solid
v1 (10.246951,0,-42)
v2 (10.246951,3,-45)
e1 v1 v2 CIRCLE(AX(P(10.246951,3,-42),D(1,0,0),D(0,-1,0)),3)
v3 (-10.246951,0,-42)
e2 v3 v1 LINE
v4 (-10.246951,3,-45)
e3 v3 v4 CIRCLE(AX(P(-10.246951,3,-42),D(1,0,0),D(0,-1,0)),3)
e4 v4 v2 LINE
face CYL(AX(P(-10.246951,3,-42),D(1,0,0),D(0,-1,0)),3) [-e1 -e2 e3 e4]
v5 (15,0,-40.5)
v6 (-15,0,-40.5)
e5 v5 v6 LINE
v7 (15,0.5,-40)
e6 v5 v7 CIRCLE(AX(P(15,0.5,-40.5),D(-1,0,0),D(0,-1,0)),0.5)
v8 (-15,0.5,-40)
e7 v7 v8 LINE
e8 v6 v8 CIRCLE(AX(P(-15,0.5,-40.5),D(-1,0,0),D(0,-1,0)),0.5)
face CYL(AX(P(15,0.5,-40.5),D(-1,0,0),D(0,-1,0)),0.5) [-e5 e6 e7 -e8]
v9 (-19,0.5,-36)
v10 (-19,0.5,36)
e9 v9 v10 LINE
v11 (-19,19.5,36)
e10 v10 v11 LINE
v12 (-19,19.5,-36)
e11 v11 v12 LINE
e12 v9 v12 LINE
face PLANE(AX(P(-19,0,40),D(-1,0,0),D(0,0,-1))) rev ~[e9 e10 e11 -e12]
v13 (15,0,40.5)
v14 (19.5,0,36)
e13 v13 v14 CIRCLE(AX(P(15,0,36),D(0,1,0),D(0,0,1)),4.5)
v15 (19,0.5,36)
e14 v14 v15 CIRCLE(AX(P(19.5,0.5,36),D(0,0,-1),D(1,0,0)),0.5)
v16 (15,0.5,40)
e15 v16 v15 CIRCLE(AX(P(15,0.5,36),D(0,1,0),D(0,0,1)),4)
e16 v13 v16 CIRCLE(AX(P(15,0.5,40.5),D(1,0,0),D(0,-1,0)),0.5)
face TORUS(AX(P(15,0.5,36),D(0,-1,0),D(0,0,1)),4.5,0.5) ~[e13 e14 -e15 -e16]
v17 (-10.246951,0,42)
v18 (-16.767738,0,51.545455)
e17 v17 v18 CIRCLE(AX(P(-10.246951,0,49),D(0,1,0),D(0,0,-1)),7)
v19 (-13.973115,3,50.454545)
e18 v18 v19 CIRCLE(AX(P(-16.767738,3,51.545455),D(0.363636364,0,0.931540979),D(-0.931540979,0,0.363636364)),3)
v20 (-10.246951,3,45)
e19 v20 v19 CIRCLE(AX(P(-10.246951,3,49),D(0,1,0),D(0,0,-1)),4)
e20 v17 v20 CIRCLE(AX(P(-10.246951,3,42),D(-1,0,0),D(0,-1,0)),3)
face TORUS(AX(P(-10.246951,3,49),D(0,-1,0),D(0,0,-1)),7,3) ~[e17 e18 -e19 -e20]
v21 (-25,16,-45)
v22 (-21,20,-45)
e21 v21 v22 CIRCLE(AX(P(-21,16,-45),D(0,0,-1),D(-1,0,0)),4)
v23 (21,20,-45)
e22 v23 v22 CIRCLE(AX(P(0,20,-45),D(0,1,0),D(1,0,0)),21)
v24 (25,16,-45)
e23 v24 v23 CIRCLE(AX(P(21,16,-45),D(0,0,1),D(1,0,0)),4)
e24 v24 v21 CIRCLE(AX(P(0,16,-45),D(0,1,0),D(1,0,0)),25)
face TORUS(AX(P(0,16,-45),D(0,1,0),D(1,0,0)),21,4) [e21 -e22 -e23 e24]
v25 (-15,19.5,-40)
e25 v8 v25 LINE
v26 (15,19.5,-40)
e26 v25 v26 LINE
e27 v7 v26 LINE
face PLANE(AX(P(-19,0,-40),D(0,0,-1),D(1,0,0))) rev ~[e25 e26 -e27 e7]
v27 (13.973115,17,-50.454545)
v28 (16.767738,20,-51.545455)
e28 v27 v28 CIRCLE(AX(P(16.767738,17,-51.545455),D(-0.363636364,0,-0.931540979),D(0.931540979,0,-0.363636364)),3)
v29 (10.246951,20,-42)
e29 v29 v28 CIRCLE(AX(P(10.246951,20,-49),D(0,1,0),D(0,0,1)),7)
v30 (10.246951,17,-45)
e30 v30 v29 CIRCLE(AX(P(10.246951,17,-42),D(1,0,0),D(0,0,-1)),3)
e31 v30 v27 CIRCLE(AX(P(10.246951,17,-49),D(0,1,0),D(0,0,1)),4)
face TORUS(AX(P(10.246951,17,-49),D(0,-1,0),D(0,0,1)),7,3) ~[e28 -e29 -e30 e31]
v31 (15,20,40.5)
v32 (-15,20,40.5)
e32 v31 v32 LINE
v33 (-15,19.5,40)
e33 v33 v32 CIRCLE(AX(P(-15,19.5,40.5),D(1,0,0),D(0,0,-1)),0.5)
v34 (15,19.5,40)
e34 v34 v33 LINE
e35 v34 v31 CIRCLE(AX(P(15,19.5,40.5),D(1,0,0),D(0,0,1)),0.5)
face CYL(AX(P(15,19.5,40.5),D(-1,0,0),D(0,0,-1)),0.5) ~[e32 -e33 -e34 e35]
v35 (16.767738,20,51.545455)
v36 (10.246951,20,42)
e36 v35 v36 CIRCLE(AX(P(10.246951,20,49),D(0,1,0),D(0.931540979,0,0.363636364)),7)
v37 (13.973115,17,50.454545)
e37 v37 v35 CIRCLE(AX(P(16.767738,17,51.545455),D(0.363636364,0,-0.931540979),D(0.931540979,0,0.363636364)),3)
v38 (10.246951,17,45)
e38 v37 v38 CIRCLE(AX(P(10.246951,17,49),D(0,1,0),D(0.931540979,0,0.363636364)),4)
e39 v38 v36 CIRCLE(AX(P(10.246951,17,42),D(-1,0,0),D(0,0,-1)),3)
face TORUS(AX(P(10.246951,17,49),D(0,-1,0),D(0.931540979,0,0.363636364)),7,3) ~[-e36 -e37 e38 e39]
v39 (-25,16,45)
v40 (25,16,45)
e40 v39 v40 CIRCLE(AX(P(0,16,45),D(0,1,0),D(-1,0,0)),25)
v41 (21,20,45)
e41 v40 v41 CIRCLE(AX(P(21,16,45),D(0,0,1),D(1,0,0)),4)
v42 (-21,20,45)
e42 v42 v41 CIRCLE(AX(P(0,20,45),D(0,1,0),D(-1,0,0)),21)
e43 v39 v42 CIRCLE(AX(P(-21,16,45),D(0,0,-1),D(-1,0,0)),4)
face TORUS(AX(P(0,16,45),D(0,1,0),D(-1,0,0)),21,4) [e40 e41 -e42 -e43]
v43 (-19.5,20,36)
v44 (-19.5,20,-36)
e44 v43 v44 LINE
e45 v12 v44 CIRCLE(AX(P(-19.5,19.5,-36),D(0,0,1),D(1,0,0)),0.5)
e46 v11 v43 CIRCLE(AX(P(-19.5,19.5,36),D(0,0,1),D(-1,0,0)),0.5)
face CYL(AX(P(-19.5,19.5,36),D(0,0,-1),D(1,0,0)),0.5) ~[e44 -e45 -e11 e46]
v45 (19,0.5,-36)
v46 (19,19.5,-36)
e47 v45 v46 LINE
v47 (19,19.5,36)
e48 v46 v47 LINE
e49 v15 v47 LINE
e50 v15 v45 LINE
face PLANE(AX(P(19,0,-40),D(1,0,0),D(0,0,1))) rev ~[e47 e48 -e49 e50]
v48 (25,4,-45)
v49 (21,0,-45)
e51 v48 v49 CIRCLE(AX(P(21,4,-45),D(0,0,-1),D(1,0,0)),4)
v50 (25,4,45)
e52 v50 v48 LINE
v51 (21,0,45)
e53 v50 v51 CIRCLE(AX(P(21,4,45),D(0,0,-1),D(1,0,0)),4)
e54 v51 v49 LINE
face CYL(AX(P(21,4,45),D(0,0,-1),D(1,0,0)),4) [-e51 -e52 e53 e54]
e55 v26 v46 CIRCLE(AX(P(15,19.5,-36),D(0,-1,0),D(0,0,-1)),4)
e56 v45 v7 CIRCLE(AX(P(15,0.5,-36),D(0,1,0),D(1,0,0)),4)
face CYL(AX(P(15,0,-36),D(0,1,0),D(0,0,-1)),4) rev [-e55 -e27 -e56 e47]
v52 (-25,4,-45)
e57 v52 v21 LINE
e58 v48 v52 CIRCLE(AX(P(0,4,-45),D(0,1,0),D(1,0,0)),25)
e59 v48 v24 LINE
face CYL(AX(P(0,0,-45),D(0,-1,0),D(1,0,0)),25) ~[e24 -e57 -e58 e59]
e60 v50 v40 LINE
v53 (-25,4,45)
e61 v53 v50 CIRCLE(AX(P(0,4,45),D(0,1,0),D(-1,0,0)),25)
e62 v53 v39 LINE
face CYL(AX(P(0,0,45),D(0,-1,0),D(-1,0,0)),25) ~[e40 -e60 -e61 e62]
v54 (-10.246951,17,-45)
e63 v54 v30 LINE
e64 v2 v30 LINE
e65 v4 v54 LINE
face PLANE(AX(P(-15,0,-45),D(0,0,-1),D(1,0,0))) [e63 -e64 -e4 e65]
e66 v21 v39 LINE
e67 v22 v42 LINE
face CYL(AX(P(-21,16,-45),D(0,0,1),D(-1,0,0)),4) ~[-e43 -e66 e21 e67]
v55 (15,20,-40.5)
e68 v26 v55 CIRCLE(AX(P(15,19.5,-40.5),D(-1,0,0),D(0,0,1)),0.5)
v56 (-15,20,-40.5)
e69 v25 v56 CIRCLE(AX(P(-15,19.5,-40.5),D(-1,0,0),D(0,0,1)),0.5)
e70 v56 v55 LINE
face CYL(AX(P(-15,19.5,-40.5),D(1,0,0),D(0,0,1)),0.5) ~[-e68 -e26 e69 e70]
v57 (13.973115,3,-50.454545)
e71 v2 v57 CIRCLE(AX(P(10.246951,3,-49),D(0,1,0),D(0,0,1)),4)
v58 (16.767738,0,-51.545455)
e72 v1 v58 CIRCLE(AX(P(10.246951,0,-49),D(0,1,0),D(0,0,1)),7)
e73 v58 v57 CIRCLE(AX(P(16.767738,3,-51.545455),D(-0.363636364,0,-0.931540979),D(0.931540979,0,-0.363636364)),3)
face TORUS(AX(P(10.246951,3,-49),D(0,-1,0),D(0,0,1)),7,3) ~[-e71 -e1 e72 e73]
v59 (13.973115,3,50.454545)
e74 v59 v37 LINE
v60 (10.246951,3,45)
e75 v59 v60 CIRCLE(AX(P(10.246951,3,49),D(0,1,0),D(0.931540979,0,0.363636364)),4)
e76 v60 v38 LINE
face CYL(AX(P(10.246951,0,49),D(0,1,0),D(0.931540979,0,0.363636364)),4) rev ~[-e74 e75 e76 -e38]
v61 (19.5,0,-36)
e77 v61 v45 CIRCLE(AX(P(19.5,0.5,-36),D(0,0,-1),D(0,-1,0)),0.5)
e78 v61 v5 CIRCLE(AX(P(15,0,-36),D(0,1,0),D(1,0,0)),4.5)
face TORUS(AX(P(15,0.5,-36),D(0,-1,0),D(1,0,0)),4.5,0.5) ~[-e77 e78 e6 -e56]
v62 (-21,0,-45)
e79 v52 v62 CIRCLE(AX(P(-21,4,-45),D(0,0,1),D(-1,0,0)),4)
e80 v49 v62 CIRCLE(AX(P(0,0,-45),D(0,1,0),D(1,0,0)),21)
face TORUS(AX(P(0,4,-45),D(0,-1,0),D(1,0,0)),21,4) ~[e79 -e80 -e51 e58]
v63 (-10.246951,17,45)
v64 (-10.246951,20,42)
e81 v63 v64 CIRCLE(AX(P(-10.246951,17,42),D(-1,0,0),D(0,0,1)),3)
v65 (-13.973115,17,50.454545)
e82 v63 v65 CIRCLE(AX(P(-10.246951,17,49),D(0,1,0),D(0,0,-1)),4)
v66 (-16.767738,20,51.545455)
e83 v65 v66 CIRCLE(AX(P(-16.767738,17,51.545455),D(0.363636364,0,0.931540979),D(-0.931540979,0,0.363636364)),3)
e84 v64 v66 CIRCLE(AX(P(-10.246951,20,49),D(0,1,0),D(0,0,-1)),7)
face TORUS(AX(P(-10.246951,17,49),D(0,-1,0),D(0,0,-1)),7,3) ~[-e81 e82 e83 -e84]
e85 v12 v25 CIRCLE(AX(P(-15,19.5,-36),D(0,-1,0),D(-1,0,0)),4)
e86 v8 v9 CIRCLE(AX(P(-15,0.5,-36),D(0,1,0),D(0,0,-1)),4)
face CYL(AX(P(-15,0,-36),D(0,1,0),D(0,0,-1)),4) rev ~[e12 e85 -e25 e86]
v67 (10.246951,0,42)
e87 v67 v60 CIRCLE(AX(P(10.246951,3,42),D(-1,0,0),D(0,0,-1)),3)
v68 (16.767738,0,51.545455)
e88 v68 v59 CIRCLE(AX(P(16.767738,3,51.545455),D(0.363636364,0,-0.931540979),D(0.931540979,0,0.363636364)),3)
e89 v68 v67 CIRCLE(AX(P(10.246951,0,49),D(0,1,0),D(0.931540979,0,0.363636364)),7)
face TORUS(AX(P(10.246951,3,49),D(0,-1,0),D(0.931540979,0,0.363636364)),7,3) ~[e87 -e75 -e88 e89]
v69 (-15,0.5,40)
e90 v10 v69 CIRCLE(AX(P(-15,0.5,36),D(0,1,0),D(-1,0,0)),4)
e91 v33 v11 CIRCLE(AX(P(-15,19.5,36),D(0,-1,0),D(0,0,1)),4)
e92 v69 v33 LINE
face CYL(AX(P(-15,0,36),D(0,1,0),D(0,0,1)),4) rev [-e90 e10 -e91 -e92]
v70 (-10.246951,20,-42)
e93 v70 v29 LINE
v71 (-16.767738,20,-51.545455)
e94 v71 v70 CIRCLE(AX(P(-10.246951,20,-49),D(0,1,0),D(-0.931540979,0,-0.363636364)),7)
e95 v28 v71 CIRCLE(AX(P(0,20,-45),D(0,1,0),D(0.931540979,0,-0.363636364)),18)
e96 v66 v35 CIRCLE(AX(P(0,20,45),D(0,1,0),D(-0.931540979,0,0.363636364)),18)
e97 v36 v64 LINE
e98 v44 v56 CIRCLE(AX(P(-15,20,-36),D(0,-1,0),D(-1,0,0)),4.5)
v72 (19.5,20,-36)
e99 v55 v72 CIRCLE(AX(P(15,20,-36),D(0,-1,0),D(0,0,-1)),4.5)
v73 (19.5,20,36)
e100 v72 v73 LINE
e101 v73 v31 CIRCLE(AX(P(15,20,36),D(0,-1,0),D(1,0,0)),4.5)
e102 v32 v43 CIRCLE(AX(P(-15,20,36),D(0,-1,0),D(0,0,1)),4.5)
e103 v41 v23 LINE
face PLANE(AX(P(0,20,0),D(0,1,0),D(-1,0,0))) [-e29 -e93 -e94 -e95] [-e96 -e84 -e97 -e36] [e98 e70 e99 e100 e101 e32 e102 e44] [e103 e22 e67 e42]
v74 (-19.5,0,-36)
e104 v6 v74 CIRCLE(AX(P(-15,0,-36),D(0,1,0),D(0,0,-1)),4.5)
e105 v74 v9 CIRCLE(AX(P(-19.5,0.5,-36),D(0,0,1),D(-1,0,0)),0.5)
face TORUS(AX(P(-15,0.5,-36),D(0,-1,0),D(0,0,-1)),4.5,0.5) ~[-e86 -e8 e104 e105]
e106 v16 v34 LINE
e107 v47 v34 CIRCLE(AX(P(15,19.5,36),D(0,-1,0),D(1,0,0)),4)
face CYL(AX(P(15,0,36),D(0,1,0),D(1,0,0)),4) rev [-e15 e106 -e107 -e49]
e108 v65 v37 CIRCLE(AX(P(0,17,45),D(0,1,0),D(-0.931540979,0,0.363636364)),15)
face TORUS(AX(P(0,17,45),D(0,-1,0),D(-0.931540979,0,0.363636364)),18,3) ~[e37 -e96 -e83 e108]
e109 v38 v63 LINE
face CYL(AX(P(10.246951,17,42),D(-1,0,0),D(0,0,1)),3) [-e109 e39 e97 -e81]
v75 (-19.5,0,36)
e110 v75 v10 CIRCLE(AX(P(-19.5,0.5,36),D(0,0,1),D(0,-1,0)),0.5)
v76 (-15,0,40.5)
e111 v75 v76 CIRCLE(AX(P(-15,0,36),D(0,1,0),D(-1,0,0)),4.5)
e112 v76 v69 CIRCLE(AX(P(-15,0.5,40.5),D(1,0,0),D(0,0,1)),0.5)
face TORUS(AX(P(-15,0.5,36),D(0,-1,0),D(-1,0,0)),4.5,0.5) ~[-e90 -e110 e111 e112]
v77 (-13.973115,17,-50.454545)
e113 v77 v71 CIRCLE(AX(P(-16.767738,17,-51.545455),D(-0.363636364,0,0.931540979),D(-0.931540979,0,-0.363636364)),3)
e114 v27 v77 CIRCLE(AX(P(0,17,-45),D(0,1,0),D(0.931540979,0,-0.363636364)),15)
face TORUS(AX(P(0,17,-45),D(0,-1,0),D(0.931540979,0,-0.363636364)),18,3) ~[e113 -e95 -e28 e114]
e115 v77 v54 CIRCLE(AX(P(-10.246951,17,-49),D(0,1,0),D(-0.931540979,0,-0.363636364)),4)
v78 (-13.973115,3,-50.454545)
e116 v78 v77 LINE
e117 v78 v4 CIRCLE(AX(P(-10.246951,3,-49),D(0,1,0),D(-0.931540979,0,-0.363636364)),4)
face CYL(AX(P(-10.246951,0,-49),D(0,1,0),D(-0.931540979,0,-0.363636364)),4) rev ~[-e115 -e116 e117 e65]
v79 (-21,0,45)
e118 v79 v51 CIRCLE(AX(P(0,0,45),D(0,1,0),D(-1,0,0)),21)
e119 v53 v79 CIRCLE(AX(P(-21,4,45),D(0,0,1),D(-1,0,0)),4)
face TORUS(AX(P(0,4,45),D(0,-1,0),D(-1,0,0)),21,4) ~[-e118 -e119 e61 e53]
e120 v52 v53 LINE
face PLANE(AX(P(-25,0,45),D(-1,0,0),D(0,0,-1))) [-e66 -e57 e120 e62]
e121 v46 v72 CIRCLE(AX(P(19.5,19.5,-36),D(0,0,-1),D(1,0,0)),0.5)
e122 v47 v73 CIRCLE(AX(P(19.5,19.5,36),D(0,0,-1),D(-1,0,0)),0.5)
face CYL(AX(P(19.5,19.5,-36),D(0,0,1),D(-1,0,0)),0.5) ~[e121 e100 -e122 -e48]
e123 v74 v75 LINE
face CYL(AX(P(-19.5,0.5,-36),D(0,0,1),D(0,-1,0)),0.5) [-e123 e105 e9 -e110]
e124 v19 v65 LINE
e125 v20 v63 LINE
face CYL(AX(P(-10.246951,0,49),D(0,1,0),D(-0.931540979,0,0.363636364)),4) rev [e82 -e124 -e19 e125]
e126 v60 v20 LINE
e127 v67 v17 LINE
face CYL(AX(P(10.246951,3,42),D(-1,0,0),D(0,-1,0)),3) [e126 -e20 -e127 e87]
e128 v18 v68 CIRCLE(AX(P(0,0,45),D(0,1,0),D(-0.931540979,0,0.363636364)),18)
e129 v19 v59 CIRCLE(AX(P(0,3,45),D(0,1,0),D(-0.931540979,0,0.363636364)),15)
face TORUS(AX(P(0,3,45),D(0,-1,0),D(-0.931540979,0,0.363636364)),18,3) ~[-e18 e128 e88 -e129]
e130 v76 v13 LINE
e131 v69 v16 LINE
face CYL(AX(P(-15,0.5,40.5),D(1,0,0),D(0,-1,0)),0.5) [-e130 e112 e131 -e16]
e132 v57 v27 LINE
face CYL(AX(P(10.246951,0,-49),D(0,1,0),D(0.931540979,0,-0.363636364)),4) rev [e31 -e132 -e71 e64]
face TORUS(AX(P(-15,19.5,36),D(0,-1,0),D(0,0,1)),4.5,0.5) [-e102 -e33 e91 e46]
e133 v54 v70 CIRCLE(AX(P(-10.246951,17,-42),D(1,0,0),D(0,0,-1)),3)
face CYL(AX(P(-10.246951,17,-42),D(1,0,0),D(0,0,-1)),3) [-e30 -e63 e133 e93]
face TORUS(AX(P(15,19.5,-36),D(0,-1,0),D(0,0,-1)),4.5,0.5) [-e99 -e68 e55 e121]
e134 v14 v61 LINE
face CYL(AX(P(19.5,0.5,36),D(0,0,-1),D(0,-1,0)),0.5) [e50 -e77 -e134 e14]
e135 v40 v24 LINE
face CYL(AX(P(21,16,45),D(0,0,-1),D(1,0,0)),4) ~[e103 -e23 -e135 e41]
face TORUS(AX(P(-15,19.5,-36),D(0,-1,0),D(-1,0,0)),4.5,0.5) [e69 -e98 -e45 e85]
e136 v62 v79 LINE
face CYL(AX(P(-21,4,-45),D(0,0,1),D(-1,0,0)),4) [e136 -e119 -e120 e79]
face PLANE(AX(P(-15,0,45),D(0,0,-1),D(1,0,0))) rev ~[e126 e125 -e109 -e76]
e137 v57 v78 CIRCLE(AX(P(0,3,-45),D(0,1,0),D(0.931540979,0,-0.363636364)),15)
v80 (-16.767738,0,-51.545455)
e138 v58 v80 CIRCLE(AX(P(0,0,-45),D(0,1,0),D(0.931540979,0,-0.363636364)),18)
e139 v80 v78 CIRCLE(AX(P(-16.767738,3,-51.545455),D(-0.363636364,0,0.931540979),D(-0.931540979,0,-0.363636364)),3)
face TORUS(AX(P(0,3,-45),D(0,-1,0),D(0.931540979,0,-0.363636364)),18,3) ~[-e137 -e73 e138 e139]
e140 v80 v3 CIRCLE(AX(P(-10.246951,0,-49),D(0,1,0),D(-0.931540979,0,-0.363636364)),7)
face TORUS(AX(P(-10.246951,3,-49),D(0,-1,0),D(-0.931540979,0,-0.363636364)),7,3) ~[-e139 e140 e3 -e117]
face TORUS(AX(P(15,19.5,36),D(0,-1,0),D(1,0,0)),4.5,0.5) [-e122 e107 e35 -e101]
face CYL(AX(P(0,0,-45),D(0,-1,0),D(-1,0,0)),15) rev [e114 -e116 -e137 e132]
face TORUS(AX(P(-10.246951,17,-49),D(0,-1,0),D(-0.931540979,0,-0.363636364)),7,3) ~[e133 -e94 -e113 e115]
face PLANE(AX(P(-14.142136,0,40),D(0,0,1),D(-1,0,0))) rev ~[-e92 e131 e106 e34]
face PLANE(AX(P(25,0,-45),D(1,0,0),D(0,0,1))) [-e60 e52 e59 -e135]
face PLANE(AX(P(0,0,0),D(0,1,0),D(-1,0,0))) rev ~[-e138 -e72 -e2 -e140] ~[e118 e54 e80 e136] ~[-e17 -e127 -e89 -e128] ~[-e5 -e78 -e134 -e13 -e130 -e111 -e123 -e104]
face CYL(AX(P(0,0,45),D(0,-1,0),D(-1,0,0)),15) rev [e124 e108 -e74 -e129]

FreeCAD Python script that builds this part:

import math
import FreeCAD as App
import Part
import Sketcher
Q = App.Units.Quantity


def edges_at(feature, points):
    """Names of the edges that pass closest to the given points."""
    edges = feature.Shape.Edges
    near = lambda p: min(range(len(edges)), key=lambda i: edges[i].distToShape(Part.Vertex(*p))[0])
    return sorted({f"Edge{near(p) + 1}" for p in points})


def add_polygon(sketch, points):
    """Adds a closed chain of lines whose ends are joined by coincident constraints."""
    first, n = sketch.GeometryCount, len(points)
    for a, b in zip(points, points[1:] + points[:1]):
        sketch.addGeometry(Part.LineSegment(App.Vector(*a, 0), App.Vector(*b, 0)), False)
    for i in range(n):
        sketch.addConstraint(Sketcher.Constraint("Coincident", first + i, 2, first + (i + 1) % n, 1))

doc = App.newDocument("Part")
params = doc.addObject("Spreadsheet::Sheet", "Params")
for row, (alias, value) in enumerate([
    ("sketch1_radius", "25 mm"),
    ("sketch1_width", "38 mm"),
    ("sketch1_height", "80 mm"),
    ("sketch1_radius2", "15 mm"),
    ("sketch1_height2", "90 mm"),
    ("pad1_length", "20 mm"),
    ("fillet_radius", "4 mm"),
    ("fillet2_radius", "4 mm"),
    ("fillet3_radius", "3 mm"),
    ("fillet4_radius", "0.5 mm"),
], start=1):
    params.set(f"A{row}", alias)
    params.set(f"B{row}", "=" + value)
    params.setAlias(f"B{row}", alias)

body = doc.addObject("PartDesign::Body", "Body")

# Sketch on XZ plane
sketch1 = body.newObject("Sketcher::SketchObject", "Sketch")
sketch1.AttachmentSupport = (doc.getObject("XZ_Plane"), [""])
sketch1.MapMode = "FlatFace"
sketch1.addGeometry(Part.LineSegment(App.Vector(-25, -45, 0), App.Vector(-25, 45, 0)), False)  # 0
sketch1.addGeometry(Part.ArcOfCircle(Part.Circle(App.Vector(0, 45, 0), App.Vector(0, 0, 1), 25), math.radians(0), math.radians(180)), False)  # 1
sketch1.addGeometry(Part.LineSegment(App.Vector(25, 45, 0), App.Vector(25, -45, 0)), False)  # 2
sketch1.addGeometry(Part.ArcOfCircle(Part.Circle(App.Vector(0, -45, 0), App.Vector(0, 0, 1), 25), math.radians(180), math.radians(360)), False)  # 3
sketch1.addGeometry(Part.ArcOfCircle(Part.Circle(App.Vector(0, -45, 0), App.Vector(0, 0, 1), 15), math.radians(180), math.radians(360)), False)  # 4
sketch1.addGeometry(Part.LineSegment(App.Vector(15, -45, 0), App.Vector(-15, -45, 0)), False)  # 5
add_polygon(sketch1, [(-19, -40), (19, -40), (19, 40), (-19, 40)])  # lines 6-9
sketch1.addGeometry(Part.ArcOfCircle(Part.Circle(App.Vector(0, 45, 0), App.Vector(0, 0, 1), 15), math.radians(0), math.radians(180)), False)  # 10
sketch1.addGeometry(Part.LineSegment(App.Vector(-15, 45, 0), App.Vector(15, 45, 0)), False)  # 11
sketch1.addConstraint(Sketcher.Constraint("Tangent", 0, 2, 1, 2))
sketch1.addConstraint(Sketcher.Constraint("Tangent", 1, 1, 2, 1))
sketch1.addConstraint(Sketcher.Constraint("Tangent", 2, 2, 3, 2))
sketch1.addConstraint(Sketcher.Constraint("Tangent", 3, 1, 0, 1))
sketch1.addConstraint(Sketcher.Constraint("Coincident", 4, 1, 5, 2))
sketch1.addConstraint(Sketcher.Constraint("Coincident", 5, 1, 4, 2))
sketch1.addConstraint(Sketcher.Constraint("Coincident", 10, 1, 11, 2))
sketch1.addConstraint(Sketcher.Constraint("Coincident", 11, 1, 10, 2))
sketch1.addConstraint(Sketcher.Constraint("Vertical", 0))
sketch1.addConstraint(Sketcher.Constraint("Vertical", 2))
sketch1.addConstraint(Sketcher.Constraint("Horizontal", 5))
sketch1.addConstraint(Sketcher.Constraint("Horizontal", 6))
sketch1.addConstraint(Sketcher.Constraint("Vertical", 7))
sketch1.addConstraint(Sketcher.Constraint("Horizontal", 8))
sketch1.addConstraint(Sketcher.Constraint("Vertical", 9))
sketch1.addConstraint(Sketcher.Constraint("Horizontal", 11))
sketch1.addConstraint(Sketcher.Constraint("Coincident", 4, 3, 3, 3))
sketch1.addConstraint(Sketcher.Constraint("Coincident", 10, 3, 1, 3))
sketch1.addConstraint(Sketcher.Constraint("Equal", 4, 10))
sketch1.addConstraint(Sketcher.Constraint("Symmetric", 1, 3, 3, 3, -1, 1))
sketch1.addConstraint(Sketcher.Constraint("Symmetric", 6, 2, 8, 2, -1, 1))
sketch1.addConstraint(Sketcher.Constraint("Horizontal", 3, 1, 4, 1))
sketch1.addConstraint(Sketcher.Constraint("Horizontal", 1, 1, 10, 1))
sketch1.addConstraint(Sketcher.Constraint("Radius", 1, Q("25 mm")))
sketch1.addConstraint(Sketcher.Constraint("DistanceX", 6, 1, 6, 2, Q("38 mm")))
sketch1.addConstraint(Sketcher.Constraint("DistanceY", 7, 1, 7, 2, Q("80 mm")))
sketch1.addConstraint(Sketcher.Constraint("Radius", 4, Q("15 mm")))
sketch1.addConstraint(Sketcher.Constraint("DistanceY", 0, 1, 0, 2, Q("90 mm")))
sketch1.setExpression("Constraints[27]", "Params.sketch1_radius")
sketch1.setExpression("Constraints[28]", "Params.sketch1_width")
sketch1.setExpression("Constraints[29]", "Params.sketch1_height")
sketch1.setExpression("Constraints[30]", "Params.sketch1_radius2")
sketch1.setExpression("Constraints[31]", "Params.sketch1_height2")
pad1 = body.newObject("PartDesign::Pad", "Pad")
pad1.Profile = sketch1
pad1.setExpression("Length", "Params.pad1_length")
pad1.Reversed = True
doc.recompute()

fillet = body.newObject("PartDesign::Fillet", "Fillet")
fillet.Base = (pad1, edges_at(pad1, [
    (0, 20, 70),
    (25, 20, 0),
    (0, 20, -70),
    (-25, 20, 0),
    (0, 0, 70),
    (25, 0, 0),
    (0, 0, -70),
    (-25, 0, 0),
]))
fillet.setExpression("Radius", "Params.fillet_radius")
doc.recompute()

fillet2 = body.newObject("PartDesign::Fillet", "Fillet001")
fillet2.Base = (fillet, edges_at(fillet, [
    (-19, 10, 40),
    (-19, 10, -40),
    (19, 10, -40),
    (19, 10, 40),
    (-15, 10, 45),
    (15, 10, 45),
    (-15, 10, -45),
    (15, 10, -45),
]))
fillet2.setExpression("Radius", "Params.fillet2_radius")
doc.recompute()

fillet3 = body.newObject("PartDesign::Fillet", "Fillet002")
fillet3.Base = (fillet2, edges_at(fillet2, [
    (0, 20, -45),
    (0, 20, -60),
    (0, 20, 60),
    (0, 20, 45),
    (0, 0, -45),
    (0, 0, -60),
    (0, 0, 60),
    (0, 0, 45),
]))
fillet3.setExpression("Radius", "Params.fillet3_radius")
doc.recompute()

fillet4 = body.newObject("PartDesign::Fillet", "Fillet003")
fillet4.Base = (fillet3, edges_at(fillet3, [
    (0, 20, -40),
    (19, 20, 0),
    (0, 20, 40),
    (-19, 20, 0),
    (0, 0, -40),
    (19, 0, 0),
    (0, 0, 40),
    (-19, 0, 0),
]))
fillet4.setExpression("Radius", "Params.fillet4_radius")

doc.recompute()
